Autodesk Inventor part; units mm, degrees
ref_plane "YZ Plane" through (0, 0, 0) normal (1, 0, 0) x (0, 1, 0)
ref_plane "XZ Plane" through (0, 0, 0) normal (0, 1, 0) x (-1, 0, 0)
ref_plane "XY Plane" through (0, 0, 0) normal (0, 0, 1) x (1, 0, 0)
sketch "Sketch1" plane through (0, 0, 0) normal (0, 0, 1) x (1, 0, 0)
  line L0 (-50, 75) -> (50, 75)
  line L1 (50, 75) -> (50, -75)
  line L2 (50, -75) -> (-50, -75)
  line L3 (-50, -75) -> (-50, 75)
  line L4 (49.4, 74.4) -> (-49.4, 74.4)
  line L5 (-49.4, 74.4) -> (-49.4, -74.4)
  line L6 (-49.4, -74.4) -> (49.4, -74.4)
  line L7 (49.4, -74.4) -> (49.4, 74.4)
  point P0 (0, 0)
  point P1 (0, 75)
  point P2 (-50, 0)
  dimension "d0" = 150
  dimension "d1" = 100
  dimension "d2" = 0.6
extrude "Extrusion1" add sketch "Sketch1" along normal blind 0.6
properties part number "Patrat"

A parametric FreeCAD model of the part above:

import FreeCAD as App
import Part
import Sketcher

doc = App.newDocument("Part")
params = doc.addObject("Spreadsheet::Sheet", "Params")
for row, (alias, value) in enumerate([
    ("sketch1_width", "100 mm"),
    ("sketch1_height", "150 mm"),
    ("pad1_length", "0.6 mm"),
], start=1):
    params.set(f"A{row}", alias)
    params.set(f"B{row}", "=" + value)
    params.setAlias(f"B{row}", alias)

body = doc.addObject("PartDesign::Body", "Body")

sketch1 = body.newObject("Sketcher::SketchObject", "Sketch")
sketch1.AttachmentSupport = (doc.getObject("XY_Plane"), [""])
sketch1.MapMode = "FlatFace"
sketch1.addGeometry(Part.LineSegment(App.Vector(50, 75, 0), App.Vector(-50, 75, 0)), False)
sketch1.addGeometry(Part.LineSegment(App.Vector(-50, 75, 0), App.Vector(-50, -75, 0)), False)
sketch1.addGeometry(Part.LineSegment(App.Vector(-50, -75, 0), App.Vector(50, -75, 0)), False)
sketch1.addGeometry(Part.LineSegment(App.Vector(50, -75, 0), App.Vector(50, 75, 0)), False)
sketch1.addGeometry(Part.LineSegment(App.Vector(-49.4, 74.4, 0), App.Vector(49.4, 74.4, 0)), False)
sketch1.addGeometry(Part.LineSegment(App.Vector(49.4, 74.4, 0), App.Vector(49.4, -74.4, 0)), False)
sketch1.addGeometry(Part.LineSegment(App.Vector(49.4, -74.4, 0), App.Vector(-49.4, -74.4, 0)), False)
sketch1.addGeometry(Part.LineSegment(App.Vector(-49.4, -74.4, 0), App.Vector(-49.4, 74.4, 0)), False)
sketch1.addConstraint(Sketcher.Constraint("Coincident", 0, 2, 1, 1))
sketch1.addConstraint(Sketcher.Constraint("Coincident", 1, 2, 2, 1))
sketch1.addConstraint(Sketcher.Constraint("Coincident", 2, 2, 3, 1))
sketch1.addConstraint(Sketcher.Constraint("Coincident", 3, 2, 0, 1))
sketch1.addConstraint(Sketcher.Constraint("Coincident", 4, 2, 5, 1))
sketch1.addConstraint(Sketcher.Constraint("Coincident", 5, 2, 6, 1))
sketch1.addConstraint(Sketcher.Constraint("Coincident", 6, 2, 7, 1))
sketch1.addConstraint(Sketcher.Constraint("Coincident", 7, 2, 4, 1))
sketch1.addConstraint(Sketcher.Constraint("Horizontal", 0))
sketch1.addConstraint(Sketcher.Constraint("Vertical", 1))
sketch1.addConstraint(Sketcher.Constraint("Horizontal", 2))
sketch1.addConstraint(Sketcher.Constraint("Vertical", 3))
sketch1.addConstraint(Sketcher.Constraint("Horizontal", 4))
sketch1.addConstraint(Sketcher.Constraint("Vertical", 5))
sketch1.addConstraint(Sketcher.Constraint("Horizontal", 6))
sketch1.addConstraint(Sketcher.Constraint("Vertical", 7))
sketch1.addConstraint(Sketcher.Constraint("Symmetric", 0, 2, 2, 2, -1, 1))
sketch1.addConstraint(Sketcher.Constraint("Symmetric", 4, 2, 6, 2, -1, 1))
sketch1.addConstraint(Sketcher.Constraint("DistanceX", 0, 2, 0, 1, 100.0))
sketch1.addConstraint(Sketcher.Constraint("DistanceY", 1, 2, 1, 1, 150.0))
sketch1.addConstraint(Sketcher.Constraint("DistanceX", 4, 2, 3, 2, 0.6))
sketch1.addConstraint(Sketcher.Constraint("DistanceY", 4, 2, 3, 2, 0.6))
sketch1.setExpression("Constraints[18]", "Params.sketch1_width")
sketch1.setExpression("Constraints[19]", "Params.sketch1_height")
pad1 = body.newObject("PartDesign::Pad", "Pad")
pad1.Profile = sketch1
pad1.setExpression("Length", "Params.pad1_length")

doc.recompute()
